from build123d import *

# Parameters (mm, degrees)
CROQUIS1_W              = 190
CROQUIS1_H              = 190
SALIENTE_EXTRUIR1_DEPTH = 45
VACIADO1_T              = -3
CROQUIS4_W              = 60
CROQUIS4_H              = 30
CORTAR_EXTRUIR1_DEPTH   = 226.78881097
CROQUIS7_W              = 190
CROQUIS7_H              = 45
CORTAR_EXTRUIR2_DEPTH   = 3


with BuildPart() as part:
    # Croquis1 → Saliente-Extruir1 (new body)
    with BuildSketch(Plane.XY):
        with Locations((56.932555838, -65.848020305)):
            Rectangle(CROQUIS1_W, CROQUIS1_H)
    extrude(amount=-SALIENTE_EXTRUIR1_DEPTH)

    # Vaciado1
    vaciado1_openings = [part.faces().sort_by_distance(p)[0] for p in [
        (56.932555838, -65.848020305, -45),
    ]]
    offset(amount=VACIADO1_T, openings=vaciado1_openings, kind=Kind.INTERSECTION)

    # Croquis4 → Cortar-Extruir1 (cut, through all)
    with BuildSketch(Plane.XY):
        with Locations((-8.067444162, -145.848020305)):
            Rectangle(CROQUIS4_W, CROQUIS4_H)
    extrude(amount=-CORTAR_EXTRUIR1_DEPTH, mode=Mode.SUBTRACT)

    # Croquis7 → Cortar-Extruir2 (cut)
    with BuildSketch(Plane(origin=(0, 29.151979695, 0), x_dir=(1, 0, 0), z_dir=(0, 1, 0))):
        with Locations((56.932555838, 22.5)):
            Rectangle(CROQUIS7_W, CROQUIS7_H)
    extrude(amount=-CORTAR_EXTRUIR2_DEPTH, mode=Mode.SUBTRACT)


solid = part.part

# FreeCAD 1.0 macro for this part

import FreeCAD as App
import Part
import Sketcher

V = App.Vector
Q = App.Units.Quantity


def faces_at(feature, points):
    """Names of the faces that lie closest to the given points."""
    faces = feature.Shape.Faces
    near = lambda p: min(range(len(faces)), key=lambda i: faces[i].distToShape(Part.Vertex(*p))[0])
    return sorted({f"Face{near(p) + 1}" for p in points})

doc = App.newDocument("Part")
params = doc.addObject("Spreadsheet::Sheet", "Params")
for row, (alias, value) in enumerate([
    ("sketch1_width", "190 mm"),
    ("pad1_length", "45 mm"),
    ("thickness_wall", "3 mm"),
    ("sketch2_width", "60 mm"),
    ("sketch2_height", "30 mm"),
    ("sketch3_width", "190 mm"),
    ("sketch3_height", "45 mm"),
    ("pocket2_length", "3 mm"),
], start=1):
    params.set(f"A{row}", alias)
    params.set(f"B{row}", "=" + value)
    params.setAlias(f"B{row}", alias)

body = doc.addObject("PartDesign::Body", "Body")

# Sketch on XY plane
sketch1 = body.newObject("Sketcher::SketchObject", "Sketch")
sketch1.AttachmentSupport = (doc.getObject("XY_Plane"), [""])
sketch1.MapMode = "FlatFace"
sketch1.addGeometry(Part.LineSegment(V(-38, 29, 0), V(-38, -161, 0)), False)
sketch1.addGeometry(Part.LineSegment(V(-38, -161, 0), V(152, -161, 0)), False)
sketch1.addGeometry(Part.LineSegment(V(152, -161, 0), V(152, 29, 0)), False)
sketch1.addGeometry(Part.LineSegment(V(152, 29, 0), V(-38, 29, 0)), False)
sketch1.addConstraint(Sketcher.Constraint("Coincident", 0, 2, 1, 1))
sketch1.addConstraint(Sketcher.Constraint("Coincident", 1, 2, 2, 1))
sketch1.addConstraint(Sketcher.Constraint("Coincident", 2, 2, 3, 1))
sketch1.addConstraint(Sketcher.Constraint("Coincident", 3, 2, 0, 1))
sketch1.addConstraint(Sketcher.Constraint("Vertical", 0))
sketch1.addConstraint(Sketcher.Constraint("Horizontal", 1))
sketch1.addConstraint(Sketcher.Constraint("Vertical", 2))
sketch1.addConstraint(Sketcher.Constraint("Horizontal", 3))
sketch1.addConstraint(Sketcher.Constraint("Equal", 3, 0))
sketch1.addConstraint(Sketcher.Constraint("DistanceX", 1, 1, 1, 2, Q("190 mm")))
sketch1.addConstraint(Sketcher.Constraint("DistanceY", 0, 2, -1, 1, Q("160.84802 mm")))
sketch1.addConstraint(Sketcher.Constraint("DistanceX", 0, 2, -1, 1, Q("38.067444 mm")))
sketch1.setExpression("Constraints[9]", "Params.sketch1_width")
pad1 = body.newObject("PartDesign::Pad", "Pad")
pad1.Profile = sketch1
pad1.setExpression("Length", "Params.pad1_length")
pad1.Reversed = True
doc.recompute()

thickness = body.newObject("PartDesign::Thickness", "Thickness")
thickness.Base = (pad1, faces_at(pad1, [(56.933, -65.848, -45)]))
thickness.setExpression("Value", "Params.thickness_wall")
thickness.Reversed = True
thickness.Join = "Intersection"

# Sketch on XY plane
sketch2 = body.newObject("Sketcher::SketchObject", "Sketch001")
sketch2.AttachmentSupport = (doc.getObject("XY_Plane"), [""])
sketch2.MapMode = "FlatFace"
sketch2.addGeometry(Part.LineSegment(V(-38, -131, 0), V(-38, -161, 0)), False)
sketch2.addGeometry(Part.LineSegment(V(-38, -161, 0), V(22, -161, 0)), False)
sketch2.addGeometry(Part.LineSegment(V(22, -161, 0), V(22, -131, 0)), False)
sketch2.addGeometry(Part.LineSegment(V(22, -131, 0), V(-38, -131, 0)), False)
sketch2.addConstraint(Sketcher.Constraint("Coincident", 0, 2, 1, 1))
sketch2.addConstraint(Sketcher.Constraint("Coincident", 1, 2, 2, 1))
sketch2.addConstraint(Sketcher.Constraint("Coincident", 2, 2, 3, 1))
sketch2.addConstraint(Sketcher.Constraint("Coincident", 3, 2, 0, 1))
sketch2.addConstraint(Sketcher.Constraint("Vertical", 0))
sketch2.addConstraint(Sketcher.Constraint("Horizontal", 1))
sketch2.addConstraint(Sketcher.Constraint("Vertical", 2))
sketch2.addConstraint(Sketcher.Constraint("Horizontal", 3))
sketch2.addConstraint(Sketcher.Constraint("DistanceX", 1, 1, 1, 2, Q("60 mm")))
sketch2.addConstraint(Sketcher.Constraint("DistanceY", 0, 2, 0, 1, Q("30 mm")))
sketch2.addConstraint(Sketcher.Constraint("DistanceY", 0, 2, -1, 1, Q("160.84802 mm")))
sketch2.addConstraint(Sketcher.Constraint("DistanceX", 0, 2, -1, 1, Q("38.067444 mm")))
sketch2.setExpression("Constraints[8]", "Params.sketch2_width")
sketch2.setExpression("Constraints[9]", "Params.sketch2_height")
pocket1 = body.newObject("PartDesign::Pocket", "Pocket")
pocket1.Profile = sketch2
pocket1.Type = "ThroughAll"

# Sketch on XZ plane
sketch3 = body.newObject("Sketcher::SketchObject", "Sketch002")
sketch3.AttachmentSupport = (doc.getObject("XZ_Plane"), [""])
sketch3.MapMode = "FlatFace"
sketch3.AttachmentOffset = App.Placement(V(0, 0, -29.15198), App.Rotation())
sketch3.addGeometry(Part.LineSegment(V(-38, -45, 0), V(-38, 0, 0)), False)
sketch3.addGeometry(Part.LineSegment(V(-38, 0, 0), V(152, 0, 0)), False)
sketch3.addGeometry(Part.LineSegment(V(152, 0, 0), V(152, -45, 0)), False)
sketch3.addGeometry(Part.LineSegment(V(152, -45, 0), V(-38, -45, 0)), False)
sketch3.addConstraint(Sketcher.Constraint("Coincident", 0, 2, 1, 1))
sketch3.addConstraint(Sketcher.Constraint("Coincident", 1, 2, 2, 1))
sketch3.addConstraint(Sketcher.Constraint("Coincident", 2, 2, 3, 1))
sketch3.addConstraint(Sketcher.Constraint("Coincident", 3, 2, 0, 1))
sketch3.addConstraint(Sketcher.Constraint("Vertical", 0))
sketch3.addConstraint(Sketcher.Constraint("Horizontal", 1))
sketch3.addConstraint(Sketcher.Constraint("Vertical", 2))
sketch3.addConstraint(Sketcher.Constraint("Horizontal", 3))
sketch3.addConstraint(Sketcher.Constraint("PointOnObject", 0, 2, -1))
sketch3.addConstraint(Sketcher.Constraint("DistanceX", 1, 1, 1, 2, Q("190 mm")))
sketch3.addConstraint(Sketcher.Constraint("DistanceY", 0, 1, 0, 2, Q("45 mm")))
sketch3.addConstraint(Sketcher.Constraint("DistanceX", 0, 2, -1, 1, Q("38.067444 mm")))
sketch3.setExpression("Constraints[9]", "Params.sketch3_width")
sketch3.setExpression("Constraints[10]", "Params.sketch3_height")
pocket2 = body.newObject("PartDesign::Pocket", "Pocket001")
pocket2.Profile = sketch3
pocket2.setExpression("Length", "Params.pocket2_length")
pocket2.Reversed = True

doc.recompute()
